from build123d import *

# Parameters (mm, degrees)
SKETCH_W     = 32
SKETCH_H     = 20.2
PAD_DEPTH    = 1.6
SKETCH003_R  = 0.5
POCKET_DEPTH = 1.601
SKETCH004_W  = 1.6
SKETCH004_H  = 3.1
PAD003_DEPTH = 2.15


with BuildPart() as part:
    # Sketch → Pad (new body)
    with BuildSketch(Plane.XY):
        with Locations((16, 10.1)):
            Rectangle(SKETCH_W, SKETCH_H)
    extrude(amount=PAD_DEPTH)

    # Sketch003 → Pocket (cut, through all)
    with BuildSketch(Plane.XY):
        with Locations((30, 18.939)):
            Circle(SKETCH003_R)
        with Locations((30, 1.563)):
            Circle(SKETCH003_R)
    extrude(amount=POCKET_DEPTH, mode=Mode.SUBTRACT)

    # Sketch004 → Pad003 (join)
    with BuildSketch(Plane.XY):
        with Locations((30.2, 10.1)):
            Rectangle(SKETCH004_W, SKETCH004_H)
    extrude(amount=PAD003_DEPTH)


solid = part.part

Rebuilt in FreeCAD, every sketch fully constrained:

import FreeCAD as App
import Part
import Sketcher

doc = App.newDocument("Part")
body = doc.addObject("PartDesign::Body", "Body")

sketch1 = body.newObject("Sketcher::SketchObject", "Sketch")
sketch1.AttachmentSupport = (doc.getObject("XY_Plane"), [""])
sketch1.MapMode = "FlatFace"
sketch1.addGeometry([
    Part.LineSegment(App.Vector(0, 20, 0), App.Vector(0, 0, 0)),
    Part.LineSegment(App.Vector(0, 0, 0), App.Vector(32, 0, 0)),
    Part.LineSegment(App.Vector(32, 0, 0), App.Vector(32, 20, 0)),
    Part.LineSegment(App.Vector(32, 20, 0), App.Vector(0, 20, 0)),
], False)
sketch1.addConstraint([
    Sketcher.Constraint("Coincident", 0, 2, 1, 1),
    Sketcher.Constraint("Coincident", 1, 2, 2, 1),
    Sketcher.Constraint("Coincident", 2, 2, 3, 1),
    Sketcher.Constraint("Coincident", 3, 2, 0, 1),
    Sketcher.Constraint("Vertical", 0),
    Sketcher.Constraint("Horizontal", 1),
    Sketcher.Constraint("Vertical", 2),
    Sketcher.Constraint("Horizontal", 3),
    Sketcher.Constraint("Coincident", 0, 2, -1, 1),
    Sketcher.Constraint("DistanceX", 1, 1, 1, 2, 32.0),
    Sketcher.Constraint("DistanceY", 0, 2, 0, 1, 20.2),
])
pad1 = body.newObject("PartDesign::Pad", "Pad")
pad1.Profile = sketch1
pad1.Length = 1.6

sketch2 = body.newObject("Sketcher::SketchObject", "Sketch001")
sketch2.AttachmentSupport = (doc.getObject("XY_Plane"), [""])
sketch2.MapMode = "FlatFace"
sketch2.addGeometry([
    Part.Circle(App.Vector(30, 18.9, 0), App.Vector(0, 0, 1), 0.5),
    Part.Circle(App.Vector(30, 1.6, 0), App.Vector(0, 0, 1), 0.5),
], False)
sketch2.addConstraint([
    Sketcher.Constraint("Equal", 0, 1),
    Sketcher.Constraint("Vertical", 0, 3, 1, 3),
    Sketcher.Constraint("Diameter", 0, 1.0),
    Sketcher.Constraint("DistanceX", -1, 1, 0, 3, 30.0),
    Sketcher.Constraint("DistanceY", -1, 1, 0, 3, 18.939),
    Sketcher.Constraint("DistanceY", -1, 1, 1, 3, 1.563),
])
pocket1 = body.newObject("PartDesign::Pocket", "Pocket")
pocket1.Profile = sketch2
pocket1.Type = "ThroughAll"
pocket1.Reversed = True

sketch3 = body.newObject("Sketcher::SketchObject", "Sketch002")
sketch3.AttachmentSupport = (doc.getObject("XY_Plane"), [""])
sketch3.MapMode = "FlatFace"
sketch3.addGeometry([
    Part.LineSegment(App.Vector(29.4, 11.7, 0), App.Vector(29.4, 8.6, 0)),
    Part.LineSegment(App.Vector(29.4, 8.6, 0), App.Vector(31, 8.6, 0)),
    Part.LineSegment(App.Vector(31, 8.6, 0), App.Vector(31, 11.7, 0)),
    Part.LineSegment(App.Vector(31, 11.7, 0), App.Vector(29.4, 11.7, 0)),
], False)
sketch3.addConstraint([
    Sketcher.Constraint("Coincident", 0, 2, 1, 1),
    Sketcher.Constraint("Coincident", 1, 2, 2, 1),
    Sketcher.Constraint("Coincident", 2, 2, 3, 1),
    Sketcher.Constraint("Coincident", 3, 2, 0, 1),
    Sketcher.Constraint("Vertical", 0),
    Sketcher.Constraint("Horizontal", 1),
    Sketcher.Constraint("Vertical", 2),
    Sketcher.Constraint("Horizontal", 3),
    Sketcher.Constraint("DistanceX", 1, 1, 1, 2, 1.6),
    Sketcher.Constraint("DistanceY", 0, 2, 0, 1, 3.1),
    Sketcher.Constraint("DistanceX", -1, 1, 1, 2, 31.0),
    Sketcher.Constraint("DistanceY", -1, 1, 0, 2, 8.55),
])
pad2 = body.newObject("PartDesign::Pad", "Pad001")
pad2.Profile = sketch3
pad2.Length = 2.15

doc.recompute()
